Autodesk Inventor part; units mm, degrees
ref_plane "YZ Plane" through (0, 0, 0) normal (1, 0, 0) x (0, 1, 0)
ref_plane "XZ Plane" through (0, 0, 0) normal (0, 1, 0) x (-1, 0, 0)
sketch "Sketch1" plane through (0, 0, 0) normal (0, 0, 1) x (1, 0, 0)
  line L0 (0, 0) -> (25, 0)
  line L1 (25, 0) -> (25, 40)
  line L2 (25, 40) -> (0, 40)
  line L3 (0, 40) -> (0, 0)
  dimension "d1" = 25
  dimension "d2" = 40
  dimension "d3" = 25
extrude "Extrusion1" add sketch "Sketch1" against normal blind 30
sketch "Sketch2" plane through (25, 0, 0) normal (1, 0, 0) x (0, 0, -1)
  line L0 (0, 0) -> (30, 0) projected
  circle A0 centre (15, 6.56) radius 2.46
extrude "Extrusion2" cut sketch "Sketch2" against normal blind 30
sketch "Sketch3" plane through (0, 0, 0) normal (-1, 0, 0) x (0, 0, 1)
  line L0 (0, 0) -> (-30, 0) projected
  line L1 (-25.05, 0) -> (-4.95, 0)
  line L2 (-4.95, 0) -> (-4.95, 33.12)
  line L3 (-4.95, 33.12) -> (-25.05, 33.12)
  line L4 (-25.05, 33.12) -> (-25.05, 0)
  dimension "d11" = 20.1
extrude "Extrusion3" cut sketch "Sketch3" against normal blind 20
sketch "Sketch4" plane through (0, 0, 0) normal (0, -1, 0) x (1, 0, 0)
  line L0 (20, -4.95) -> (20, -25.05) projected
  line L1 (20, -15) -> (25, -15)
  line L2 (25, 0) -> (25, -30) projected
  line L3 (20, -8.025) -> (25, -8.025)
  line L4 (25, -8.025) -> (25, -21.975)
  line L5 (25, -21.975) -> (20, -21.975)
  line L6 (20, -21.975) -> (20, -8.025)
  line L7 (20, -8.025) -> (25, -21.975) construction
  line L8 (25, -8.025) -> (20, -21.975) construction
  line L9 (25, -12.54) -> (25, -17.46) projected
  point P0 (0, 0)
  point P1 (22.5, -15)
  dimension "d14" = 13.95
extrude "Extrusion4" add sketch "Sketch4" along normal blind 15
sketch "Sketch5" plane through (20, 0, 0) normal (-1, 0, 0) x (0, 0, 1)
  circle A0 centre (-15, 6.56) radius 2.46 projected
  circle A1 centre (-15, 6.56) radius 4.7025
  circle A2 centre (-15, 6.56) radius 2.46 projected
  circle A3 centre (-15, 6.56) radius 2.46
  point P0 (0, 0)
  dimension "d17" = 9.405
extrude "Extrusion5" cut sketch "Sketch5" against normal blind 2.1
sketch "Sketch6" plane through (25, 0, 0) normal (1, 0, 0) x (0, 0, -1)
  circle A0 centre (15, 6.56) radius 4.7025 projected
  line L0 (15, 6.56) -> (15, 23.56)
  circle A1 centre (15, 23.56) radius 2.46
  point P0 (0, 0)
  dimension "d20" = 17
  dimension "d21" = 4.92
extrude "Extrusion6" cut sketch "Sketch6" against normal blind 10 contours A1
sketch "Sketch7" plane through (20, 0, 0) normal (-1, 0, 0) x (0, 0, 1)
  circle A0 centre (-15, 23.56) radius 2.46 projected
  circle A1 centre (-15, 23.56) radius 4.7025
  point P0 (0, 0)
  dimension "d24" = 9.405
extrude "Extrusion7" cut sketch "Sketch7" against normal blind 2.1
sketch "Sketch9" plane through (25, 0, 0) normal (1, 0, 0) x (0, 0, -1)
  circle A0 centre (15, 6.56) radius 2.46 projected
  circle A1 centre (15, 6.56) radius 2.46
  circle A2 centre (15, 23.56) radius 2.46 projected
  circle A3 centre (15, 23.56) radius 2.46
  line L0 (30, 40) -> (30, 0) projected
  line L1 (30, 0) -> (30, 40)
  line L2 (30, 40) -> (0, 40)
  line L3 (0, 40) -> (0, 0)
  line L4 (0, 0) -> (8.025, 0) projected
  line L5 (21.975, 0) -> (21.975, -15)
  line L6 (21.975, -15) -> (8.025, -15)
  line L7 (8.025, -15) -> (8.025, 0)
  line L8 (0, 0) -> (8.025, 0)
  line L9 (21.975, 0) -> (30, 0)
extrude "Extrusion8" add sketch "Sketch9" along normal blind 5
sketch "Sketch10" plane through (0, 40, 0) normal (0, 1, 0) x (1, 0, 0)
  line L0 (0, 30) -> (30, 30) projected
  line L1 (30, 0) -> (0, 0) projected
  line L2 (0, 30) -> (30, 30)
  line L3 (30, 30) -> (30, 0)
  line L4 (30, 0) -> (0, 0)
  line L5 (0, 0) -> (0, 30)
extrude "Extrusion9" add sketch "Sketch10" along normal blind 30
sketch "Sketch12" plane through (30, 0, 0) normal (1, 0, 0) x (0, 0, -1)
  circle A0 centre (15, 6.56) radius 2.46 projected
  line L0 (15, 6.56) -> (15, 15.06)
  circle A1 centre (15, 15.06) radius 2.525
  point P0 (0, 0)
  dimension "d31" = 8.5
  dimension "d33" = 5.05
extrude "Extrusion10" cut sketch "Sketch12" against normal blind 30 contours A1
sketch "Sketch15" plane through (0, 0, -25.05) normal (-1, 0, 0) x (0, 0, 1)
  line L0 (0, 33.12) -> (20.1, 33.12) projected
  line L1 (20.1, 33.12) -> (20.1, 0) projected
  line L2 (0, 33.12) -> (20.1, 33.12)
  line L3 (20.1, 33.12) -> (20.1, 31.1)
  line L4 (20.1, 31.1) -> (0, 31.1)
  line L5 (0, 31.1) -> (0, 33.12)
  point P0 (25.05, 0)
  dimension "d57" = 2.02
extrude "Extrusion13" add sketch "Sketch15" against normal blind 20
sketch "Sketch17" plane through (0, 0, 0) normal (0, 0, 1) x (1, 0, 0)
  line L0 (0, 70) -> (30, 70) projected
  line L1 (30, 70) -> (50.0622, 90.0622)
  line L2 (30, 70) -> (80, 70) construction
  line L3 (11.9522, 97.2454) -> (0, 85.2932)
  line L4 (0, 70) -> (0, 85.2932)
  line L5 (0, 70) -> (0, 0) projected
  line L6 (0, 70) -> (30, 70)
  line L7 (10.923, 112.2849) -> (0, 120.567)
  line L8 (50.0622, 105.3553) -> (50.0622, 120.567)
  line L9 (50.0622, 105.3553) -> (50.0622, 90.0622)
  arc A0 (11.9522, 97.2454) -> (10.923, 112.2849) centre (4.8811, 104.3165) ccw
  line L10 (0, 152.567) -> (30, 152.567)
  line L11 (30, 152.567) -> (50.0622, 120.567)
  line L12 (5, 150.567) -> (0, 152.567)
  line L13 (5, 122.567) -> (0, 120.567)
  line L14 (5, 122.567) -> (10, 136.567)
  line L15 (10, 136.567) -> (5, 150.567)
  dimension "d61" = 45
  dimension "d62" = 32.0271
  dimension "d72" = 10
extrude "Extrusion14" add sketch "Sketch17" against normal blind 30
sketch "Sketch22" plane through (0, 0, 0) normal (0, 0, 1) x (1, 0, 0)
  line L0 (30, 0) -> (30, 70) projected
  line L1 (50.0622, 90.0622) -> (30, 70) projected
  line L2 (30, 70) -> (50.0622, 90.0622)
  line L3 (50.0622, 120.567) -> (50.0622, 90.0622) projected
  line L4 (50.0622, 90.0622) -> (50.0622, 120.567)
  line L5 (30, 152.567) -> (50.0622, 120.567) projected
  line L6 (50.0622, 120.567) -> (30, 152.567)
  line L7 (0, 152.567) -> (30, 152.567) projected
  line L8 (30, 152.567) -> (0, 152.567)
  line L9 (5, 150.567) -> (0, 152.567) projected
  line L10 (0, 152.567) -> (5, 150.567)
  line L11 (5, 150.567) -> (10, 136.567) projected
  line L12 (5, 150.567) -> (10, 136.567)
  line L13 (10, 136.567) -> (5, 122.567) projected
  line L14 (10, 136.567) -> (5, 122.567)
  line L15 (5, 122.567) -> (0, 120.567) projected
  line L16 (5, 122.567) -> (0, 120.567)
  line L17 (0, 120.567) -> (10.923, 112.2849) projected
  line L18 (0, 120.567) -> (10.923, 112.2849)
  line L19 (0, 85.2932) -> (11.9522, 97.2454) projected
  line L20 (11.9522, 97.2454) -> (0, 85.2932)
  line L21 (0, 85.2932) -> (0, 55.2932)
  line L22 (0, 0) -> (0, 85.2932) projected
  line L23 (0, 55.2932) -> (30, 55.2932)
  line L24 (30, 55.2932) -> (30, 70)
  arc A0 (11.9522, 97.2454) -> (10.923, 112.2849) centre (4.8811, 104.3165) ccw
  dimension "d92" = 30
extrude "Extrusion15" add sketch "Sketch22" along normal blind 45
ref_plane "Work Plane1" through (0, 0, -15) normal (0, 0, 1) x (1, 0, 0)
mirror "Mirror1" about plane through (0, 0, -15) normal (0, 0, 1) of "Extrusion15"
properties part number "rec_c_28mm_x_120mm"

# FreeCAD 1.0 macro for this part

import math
import FreeCAD as App
import Part
import Sketcher

V = App.Vector
Q = App.Units.Quantity


def add_polygon(sketch, points):
    """Adds a closed chain of lines whose ends are joined by coincident constraints."""
    first, n = sketch.GeometryCount, len(points)
    for a, b in zip(points, points[1:] + points[:1]):
        sketch.addGeometry(Part.LineSegment(App.Vector(*a, 0), App.Vector(*b, 0)), False)
    for i in range(n):
        sketch.addConstraint(Sketcher.Constraint("Coincident", first + i, 2, first + (i + 1) % n, 1))

doc = App.newDocument("Part")
body = doc.addObject("PartDesign::Body", "Body")

# Sketch on XY plane
sketch1 = body.newObject("Sketcher::SketchObject", "Sketch")
sketch1.AttachmentSupport = (doc.getObject("XY_Plane"), [""])
sketch1.MapMode = "FlatFace"
add_polygon(sketch1, [(0, 40), (0, 0), (25, 0), (25, 40)])  # lines 0-3
sketch1.addConstraint(Sketcher.Constraint("Vertical", 0))
sketch1.addConstraint(Sketcher.Constraint("Horizontal", 1))
sketch1.addConstraint(Sketcher.Constraint("Vertical", 2))
sketch1.addConstraint(Sketcher.Constraint("Horizontal", 3))
sketch1.addConstraint(Sketcher.Constraint("Coincident", 0, 2, -1, 1))
sketch1.addConstraint(Sketcher.Constraint("DistanceX", 1, 1, 1, 2, 25.0))
sketch1.addConstraint(Sketcher.Constraint("DistanceY", 0, 2, 0, 1, 40.0))
pad1 = body.newObject("PartDesign::Pad", "Pad")
pad1.Profile = sketch1
pad1.Length = 30
pad1.Reversed = True

# Sketch on YZ plane
sketch2 = body.newObject("Sketcher::SketchObject", "Sketch001")
sketch2.AttachmentSupport = (doc.getObject("YZ_Plane"), [""])
sketch2.MapMode = "FlatFace"
sketch2.AttachmentOffset = App.Placement(V(0, 0, 25), App.Rotation())
sketch2.addGeometry(Part.Circle(V(6.6, -15, 0), V(0, 0, 1), 2.5), False)
sketch2.addConstraint(Sketcher.Constraint("Diameter", 0, 4.92))
sketch2.addConstraint(Sketcher.Constraint("DistanceY", 0, 3, -1, 1, 15.0))
sketch2.addConstraint(Sketcher.Constraint("DistanceX", -1, 1, 0, 3, 6.56))
pocket1 = body.newObject("PartDesign::Pocket", "Pocket")
pocket1.Profile = sketch2
pocket1.Length = 30

# Sketch on YZ plane
sketch3 = body.newObject("Sketcher::SketchObject", "Sketch002")
sketch3.AttachmentSupport = (doc.getObject("YZ_Plane"), [""])
sketch3.MapMode = "FlatFace"
add_polygon(sketch3, [(0, -25), (0, -5), (33, -5), (33, -25)])  # lines 0-3
sketch3.addConstraint(Sketcher.Constraint("Vertical", 0))
sketch3.addConstraint(Sketcher.Constraint("Horizontal", 1))
sketch3.addConstraint(Sketcher.Constraint("Vertical", 2))
sketch3.addConstraint(Sketcher.Constraint("Horizontal", 3))
sketch3.addConstraint(Sketcher.Constraint("PointOnObject", 0, 2, -2))
sketch3.addConstraint(Sketcher.Constraint("DistanceY", 0, 1, 0, 2, 20.1))
sketch3.addConstraint(Sketcher.Constraint("DistanceX", 1, 1, 1, 2, 33.12))
sketch3.addConstraint(Sketcher.Constraint("DistanceY", 0, 2, -1, 1, 4.95))
pocket2 = body.newObject("PartDesign::Pocket", "Pocket001")
pocket2.Profile = sketch3
pocket2.Length = 20
pocket2.Reversed = True

# Sketch on XZ plane
sketch4 = body.newObject("Sketcher::SketchObject", "Sketch003")
sketch4.AttachmentSupport = (doc.getObject("XZ_Plane"), [""])
sketch4.MapMode = "FlatFace"
add_polygon(sketch4, [(25, -8), (20, -8), (20, -22), (25, -22)])  # lines 0-3
sketch4.addConstraint(Sketcher.Constraint("Horizontal", 0))
sketch4.addConstraint(Sketcher.Constraint("Vertical", 1))
sketch4.addConstraint(Sketcher.Constraint("Horizontal", 2))
sketch4.addConstraint(Sketcher.Constraint("Vertical", 3))
sketch4.addConstraint(Sketcher.Constraint("DistanceY", 1, 2, 1, 1, 13.95))
sketch4.addConstraint(Sketcher.Constraint("DistanceX", 0, 2, 0, 1, 5.0))
sketch4.addConstraint(Sketcher.Constraint("DistanceX", -1, 1, 0, 2, 20.0))
sketch4.addConstraint(Sketcher.Constraint("DistanceY", 0, 2, -1, 1, 8.025))
pad2 = body.newObject("PartDesign::Pad", "Pad001")
pad2.Profile = sketch4
pad2.Length = 15

# Sketch on YZ plane
sketch5 = body.newObject("Sketcher::SketchObject", "Sketch004")
sketch5.AttachmentSupport = (doc.getObject("YZ_Plane"), [""])
sketch5.MapMode = "FlatFace"
sketch5.AttachmentOffset = App.Placement(V(0, 0, 20), App.Rotation())
sketch5.addGeometry(Part.Circle(V(6.6, -15, 0), V(0, 0, 1), 4.7), False)
sketch5.addGeometry(Part.Circle(V(6.6, -15, 0), V(0, 0, 1), 2.5), False)
sketch5.addConstraint(Sketcher.Constraint("Coincident", 1, 3, 0, 3))
sketch5.addConstraint(Sketcher.Constraint("Diameter", 0, 9.405))
sketch5.addConstraint(Sketcher.Constraint("Diameter", 1, 4.92))
sketch5.addConstraint(Sketcher.Constraint("DistanceY", 0, 3, -1, 1, 15.0))
sketch5.addConstraint(Sketcher.Constraint("DistanceX", -1, 1, 0, 3, 6.56))
pocket3 = body.newObject("PartDesign::Pocket", "Pocket002")
pocket3.Profile = sketch5
pocket3.Length = 2.1
pocket3.Reversed = True

# Sketch on YZ plane
sketch6 = body.newObject("Sketcher::SketchObject", "Sketch005")
sketch6.AttachmentSupport = (doc.getObject("YZ_Plane"), [""])
sketch6.MapMode = "FlatFace"
sketch6.AttachmentOffset = App.Placement(V(0, 0, 25), App.Rotation())
sketch6.addGeometry(Part.Circle(V(23.6, -15, 0), V(0, 0, 1), 2.5), False)
sketch6.addConstraint(Sketcher.Constraint("Diameter", 0, 4.92))
sketch6.addConstraint(Sketcher.Constraint("DistanceY", 0, 3, -1, 1, 15.0))
sketch6.addConstraint(Sketcher.Constraint("DistanceX", -1, 1, 0, 3, 23.56))
pocket4 = body.newObject("PartDesign::Pocket", "Pocket003")
pocket4.Profile = sketch6
pocket4.Length = 10

# Sketch on YZ plane
sketch7 = body.newObject("Sketcher::SketchObject", "Sketch006")
sketch7.AttachmentSupport = (doc.getObject("YZ_Plane"), [""])
sketch7.MapMode = "FlatFace"
sketch7.AttachmentOffset = App.Placement(V(0, 0, 20), App.Rotation())
sketch7.addGeometry(Part.Circle(V(23.6, -15, 0), V(0, 0, 1), 4.7), False)
sketch7.addGeometry(Part.Circle(V(23.6, -15, 0), V(0, 0, 1), 2.5), False)
sketch7.addConstraint(Sketcher.Constraint("Coincident", 1, 3, 0, 3))
sketch7.addConstraint(Sketcher.Constraint("Diameter", 0, 9.405))
sketch7.addConstraint(Sketcher.Constraint("Diameter", 1, 4.92))
sketch7.addConstraint(Sketcher.Constraint("DistanceY", 0, 3, -1, 1, 15.0))
sketch7.addConstraint(Sketcher.Constraint("DistanceX", -1, 1, 0, 3, 23.56))
pocket5 = body.newObject("PartDesign::Pocket", "Pocket004")
pocket5.Profile = sketch7
pocket5.Length = 2.1
pocket5.Reversed = True

# Sketch on YZ plane
sketch8 = body.newObject("Sketcher::SketchObject", "Sketch007")
sketch8.AttachmentSupport = (doc.getObject("YZ_Plane"), [""])
sketch8.MapMode = "FlatFace"
sketch8.AttachmentOffset = App.Placement(V(0, 0, 25), App.Rotation())
add_polygon(sketch8, [(0, -30), (40, -30), (40, 0), (0, 0), (0, -8), (-15, -8), (-15, -22), (0, -22)])  # lines 0-7
sketch8.addGeometry(Part.Circle(V(6.6, -15, 0), V(0, 0, 1), 2.5), False)  # 8
sketch8.addGeometry(Part.Circle(V(23.6, -15, 0), V(0, 0, 1), 2.5), False)  # 9
sketch8.addConstraint(Sketcher.Constraint("Horizontal", 0))
sketch8.addConstraint(Sketcher.Constraint("Vertical", 1))
sketch8.addConstraint(Sketcher.Constraint("Horizontal", 2))
sketch8.addConstraint(Sketcher.Constraint("Vertical", 3))
sketch8.addConstraint(Sketcher.Constraint("Horizontal", 4))
sketch8.addConstraint(Sketcher.Constraint("Vertical", 5))
sketch8.addConstraint(Sketcher.Constraint("Horizontal", 6))
sketch8.addConstraint(Sketcher.Constraint("Vertical", 7))
sketch8.addConstraint(Sketcher.Constraint("Coincident", 2, 2, -1, 1))
sketch8.addConstraint(Sketcher.Constraint("Equal", 8, 9))
sketch8.addConstraint(Sketcher.Constraint("PointOnObject", 6, 2, -2))
sketch8.addConstraint(Sketcher.Constraint("Horizontal", 8, 3, 9, 3))
sketch8.addConstraint(Sketcher.Constraint("Equal", 3, 7))
sketch8.addConstraint(Sketcher.Constraint("Diameter", 8, 4.92))
sketch8.addConstraint(Sketcher.Constraint("DistanceX", 0, 1, 0, 2, 40.0))
sketch8.addConstraint(Sketcher.Constraint("DistanceX", 4, 2, 4, 1, 15.0))
sketch8.addConstraint(Sketcher.Constraint("DistanceY", 1, 1, 1, 2, 30.0))
sketch8.addConstraint(Sketcher.Constraint("DistanceY", 8, 3, -1, 1, 15.0))
sketch8.addConstraint(Sketcher.Constraint("DistanceX", 8, 3, 9, 3, 17.0))
sketch8.addConstraint(Sketcher.Constraint("DistanceY", 5, 2, 5, 1, 13.95))
sketch8.addConstraint(Sketcher.Constraint("DistanceX", -1, 1, 8, 3, 6.56))
pad3 = body.newObject("PartDesign::Pad", "Pad002")
pad3.Profile = sketch8
pad3.Length = 5

# Sketch on XZ plane
sketch9 = body.newObject("Sketcher::SketchObject", "Sketch008")
sketch9.AttachmentSupport = (doc.getObject("XZ_Plane"), [""])
sketch9.MapMode = "FlatFace"
sketch9.AttachmentOffset = App.Placement(V(0, 0, -40), App.Rotation())
add_polygon(sketch9, [(30, -30), (0, -30), (0, 0), (30, 0)])  # lines 0-3
sketch9.addConstraint(Sketcher.Constraint("Horizontal", 0))
sketch9.addConstraint(Sketcher.Constraint("Vertical", 1))
sketch9.addConstraint(Sketcher.Constraint("Horizontal", 2))
sketch9.addConstraint(Sketcher.Constraint("Vertical", 3))
sketch9.addConstraint(Sketcher.Constraint("Coincident", 1, 2, -1, 1))
sketch9.addConstraint(Sketcher.Constraint("Equal", 2, 1))
sketch9.addConstraint(Sketcher.Constraint("DistanceX", 0, 2, 0, 1, 30.0))
pad4 = body.newObject("PartDesign::Pad", "Pad003")
pad4.Profile = sketch9
pad4.Length = 30
pad4.Reversed = True

# Sketch on YZ plane
sketch10 = body.newObject("Sketcher::SketchObject", "Sketch009")
sketch10.AttachmentSupport = (doc.getObject("YZ_Plane"), [""])
sketch10.MapMode = "FlatFace"
sketch10.AttachmentOffset = App.Placement(V(0, 0, 30), App.Rotation())
sketch10.addGeometry(Part.Circle(V(15.1, -15, 0), V(0, 0, 1), 2.5), False)
sketch10.addConstraint(Sketcher.Constraint("Diameter", 0, 5.05))
sketch10.addConstraint(Sketcher.Constraint("DistanceY", 0, 3, -1, 1, 15.0))
sketch10.addConstraint(Sketcher.Constraint("DistanceX", -1, 1, 0, 3, 15.06))
pocket6 = body.newObject("PartDesign::Pocket", "Pocket005")
pocket6.Profile = sketch10
pocket6.Length = 30

# Sketch on YZ plane
sketch11 = body.newObject("Sketcher::SketchObject", "Sketch010")
sketch11.AttachmentSupport = (doc.getObject("YZ_Plane"), [""])
sketch11.MapMode = "FlatFace"
add_polygon(sketch11, [(33.1, -5), (33.1, -25.1), (31.1, -25.1), (31.1, -5)])  # lines 0-3
sketch11.addConstraint(Sketcher.Constraint("Vertical", 0))
sketch11.addConstraint(Sketcher.Constraint("Horizontal", 1))
sketch11.addConstraint(Sketcher.Constraint("Vertical", 2))
sketch11.addConstraint(Sketcher.Constraint("Horizontal", 3))
sketch11.addConstraint(Sketcher.Constraint("DistanceX", 1, 2, 1, 1, 2.02))
sketch11.addConstraint(Sketcher.Constraint("DistanceY", 0, 2, 0, 1, 20.1))
sketch11.addConstraint(Sketcher.Constraint("DistanceX", -1, 1, 1, 2, 31.1))
sketch11.addConstraint(Sketcher.Constraint("DistanceY", 0, 2, -1, 1, 25.05))
pad5 = body.newObject("PartDesign::Pad", "Pad004")
pad5.Profile = sketch11
pad5.Length = 20

# Sketch on XY plane
sketch12 = body.newObject("Sketcher::SketchObject", "Sketch011")
sketch12.AttachmentSupport = (doc.getObject("XY_Plane"), [""])
sketch12.MapMode = "FlatFace"
sketch12.addGeometry(Part.LineSegment(V(0, 85, 0), V(0, 70, 0)), False)
sketch12.addGeometry(Part.LineSegment(V(0, 70, 0), V(30, 70, 0)), False)
sketch12.addGeometry(Part.LineSegment(V(30, 70, 0), V(50, 90, 0)), False)
sketch12.addGeometry(Part.LineSegment(V(50, 90, 0), V(50, 121, 0)), False)
sketch12.addGeometry(Part.LineSegment(V(50, 121, 0), V(30, 153, 0)), False)
sketch12.addGeometry(Part.LineSegment(V(30, 153, 0), V(0, 153, 0)), False)
sketch12.addGeometry(Part.LineSegment(V(0, 153, 0), V(5, 151, 0)), False)
sketch12.addGeometry(Part.LineSegment(V(5, 151, 0), V(10, 137, 0)), False)
sketch12.addGeometry(Part.LineSegment(V(10, 137, 0), V(5, 123, 0)), False)
sketch12.addGeometry(Part.LineSegment(V(5, 123, 0), V(0, 121, 0)), False)
sketch12.addGeometry(Part.LineSegment(V(0, 121, 0), V(11, 112, 0)), False)
sketch12.addGeometry(Part.ArcOfCircle(Part.Circle(V(5, 104, 0), V(0, 0, 1), 10), math.radians(-45), math.radians(53)), False)
sketch12.addGeometry(Part.LineSegment(V(12, 97, 0), V(0, 85, 0)), False)
sketch12.addConstraint(Sketcher.Constraint("Coincident", 0, 2, 1, 1))
sketch12.addConstraint(Sketcher.Constraint("Coincident", 1, 2, 2, 1))
sketch12.addConstraint(Sketcher.Constraint("Coincident", 2, 2, 3, 1))
sketch12.addConstraint(Sketcher.Constraint("Coincident", 3, 2, 4, 1))
sketch12.addConstraint(Sketcher.Constraint("Coincident", 4, 2, 5, 1))
sketch12.addConstraint(Sketcher.Constraint("Coincident", 5, 2, 6, 1))
sketch12.addConstraint(Sketcher.Constraint("Coincident", 6, 2, 7, 1))
sketch12.addConstraint(Sketcher.Constraint("Coincident", 7, 2, 8, 1))
sketch12.addConstraint(Sketcher.Constraint("Coincident", 8, 2, 9, 1))
sketch12.addConstraint(Sketcher.Constraint("Coincident", 9, 2, 10, 1))
sketch12.addConstraint(Sketcher.Constraint("Tangent", 10, 2, 11, 2))
sketch12.addConstraint(Sketcher.Constraint("Tangent", 11, 1, 12, 1))
sketch12.addConstraint(Sketcher.Constraint("Coincident", 12, 2, 0, 1))
sketch12.addConstraint(Sketcher.Constraint("Vertical", 0))
sketch12.addConstraint(Sketcher.Constraint("Horizontal", 1))
sketch12.addConstraint(Sketcher.Constraint("Vertical", 3))
sketch12.addConstraint(Sketcher.Constraint("Horizontal", 5))
sketch12.addConstraint(Sketcher.Constraint("PointOnObject", 0, 2, -2))
sketch12.addConstraint(Sketcher.Constraint("PointOnObject", 5, 2, -2))
sketch12.addConstraint(Sketcher.Constraint("PointOnObject", 9, 2, -2))
sketch12.addConstraint(Sketcher.Constraint("Parallel", 2, 12))
sketch12.addConstraint(Sketcher.Constraint("Horizontal", 3, 2, 9, 2))
sketch12.addConstraint(Sketcher.Constraint("Vertical", 1, 2, 4, 2))
sketch12.addConstraint(Sketcher.Constraint("Vertical", 6, 2, 8, 2))
sketch12.addConstraint(Sketcher.Constraint("Equal", 7, 8))
sketch12.addConstraint(Sketcher.Constraint("Equal", 6, 9))
sketch12.addConstraint(Sketcher.Constraint("Radius", 11, 10.0))
sketch12.addConstraint(Sketcher.Constraint("Angle", 2, Q("45 deg")))
sketch12.addConstraint(Sketcher.Constraint("DistanceX", -1, 1, 7, 2, 10.0))
sketch12.addConstraint(Sketcher.Constraint("DistanceX", 1, 1, 1, 2, 30.0))
sketch12.addConstraint(Sketcher.Constraint("DistanceY", -1, 1, 0, 2, 70.0))
sketch12.addConstraint(Sketcher.Constraint("DistanceX", -1, 1, 6, 2, 5.0))
sketch12.addConstraint(Sketcher.Constraint("DistanceY", 3, 2, 4, 2, 32.0))
sketch12.addConstraint(Sketcher.Constraint("DistanceY", 6, 2, 5, 2, 2.0))
sketch12.addConstraint(Sketcher.Constraint("Angle", 10, Q("-37.1703 deg")))
sketch12.addConstraint(Sketcher.Constraint("Distance", 4, 37.769))
sketch12.addConstraint(Sketcher.Constraint("Distance", 12, 16.903))
sketch12.addConstraint(Sketcher.Constraint("DistanceY", 0, 2, 0, 1, 15.2932))
pad6 = body.newObject("PartDesign::Pad", "Pad005")
pad6.Profile = sketch12
pad6.Length = 30
pad6.Reversed = True

# Sketch on XY plane
sketch13 = body.newObject("Sketcher::SketchObject", "Sketch012")
sketch13.AttachmentSupport = (doc.getObject("XY_Plane"), [""])
sketch13.MapMode = "FlatFace"
sketch13.addGeometry(Part.LineSegment(V(0, 55, 0), V(30, 55, 0)), False)
sketch13.addGeometry(Part.LineSegment(V(30, 55, 0), V(30, 70, 0)), False)
sketch13.addGeometry(Part.LineSegment(V(30, 70, 0), V(50, 90, 0)), False)
sketch13.addGeometry(Part.LineSegment(V(50, 90, 0), V(50, 121, 0)), False)
sketch13.addGeometry(Part.LineSegment(V(50, 121, 0), V(30, 153, 0)), False)
sketch13.addGeometry(Part.LineSegment(V(30, 153, 0), V(0, 153, 0)), False)
sketch13.addGeometry(Part.LineSegment(V(0, 153, 0), V(5, 151, 0)), False)
sketch13.addGeometry(Part.LineSegment(V(5, 151, 0), V(10, 137, 0)), False)
sketch13.addGeometry(Part.LineSegment(V(10, 137, 0), V(5, 123, 0)), False)
sketch13.addGeometry(Part.LineSegment(V(5, 123, 0), V(0, 121, 0)), False)
sketch13.addGeometry(Part.LineSegment(V(0, 121, 0), V(11, 112, 0)), False)
sketch13.addGeometry(Part.ArcOfCircle(Part.Circle(V(5, 104, 0), V(0, 0, 1), 10), math.radians(-45), math.radians(53)), False)
sketch13.addGeometry(Part.LineSegment(V(12, 97, 0), V(0, 85, 0)), False)
sketch13.addGeometry(Part.LineSegment(V(0, 85, 0), V(0, 55, 0)), False)
sketch13.addConstraint(Sketcher.Constraint("Coincident", 0, 2, 1, 1))
sketch13.addConstraint(Sketcher.Constraint("Coincident", 1, 2, 2, 1))
sketch13.addConstraint(Sketcher.Constraint("Coincident", 2, 2, 3, 1))
sketch13.addConstraint(Sketcher.Constraint("Coincident", 3, 2, 4, 1))
sketch13.addConstraint(Sketcher.Constraint("Coincident", 4, 2, 5, 1))
sketch13.addConstraint(Sketcher.Constraint("Coincident", 5, 2, 6, 1))
sketch13.addConstraint(Sketcher.Constraint("Coincident", 6, 2, 7, 1))
sketch13.addConstraint(Sketcher.Constraint("Coincident", 7, 2, 8, 1))
sketch13.addConstraint(Sketcher.Constraint("Coincident", 8, 2, 9, 1))
sketch13.addConstraint(Sketcher.Constraint("Coincident", 9, 2, 10, 1))
sketch13.addConstraint(Sketcher.Constraint("Tangent", 10, 2, 11, 2))
sketch13.addConstraint(Sketcher.Constraint("Tangent", 11, 1, 12, 1))
sketch13.addConstraint(Sketcher.Constraint("Coincident", 12, 2, 13, 1))
sketch13.addConstraint(Sketcher.Constraint("Coincident", 13, 2, 0, 1))
sketch13.addConstraint(Sketcher.Constraint("Horizontal", 0))
sketch13.addConstraint(Sketcher.Constraint("Vertical", 1))
sketch13.addConstraint(Sketcher.Constraint("Vertical", 3))
sketch13.addConstraint(Sketcher.Constraint("Horizontal", 5))
sketch13.addConstraint(Sketcher.Constraint("Vertical", 13))
sketch13.addConstraint(Sketcher.Constraint("PointOnObject", 5, 2, -2))
sketch13.addConstraint(Sketcher.Constraint("PointOnObject", 9, 2, -2))
sketch13.addConstraint(Sketcher.Constraint("PointOnObject", 12, 2, -2))
sketch13.addConstraint(Sketcher.Constraint("Parallel", 2, 12))
sketch13.addConstraint(Sketcher.Constraint("Horizontal", 3, 2, 9, 2))
sketch13.addConstraint(Sketcher.Constraint("Vertical", 1, 2, 4, 2))
sketch13.addConstraint(Sketcher.Constraint("Vertical", 6, 2, 8, 2))
sketch13.addConstraint(Sketcher.Constraint("Equal", 5, 13))
sketch13.addConstraint(Sketcher.Constraint("Equal", 7, 8))
sketch13.addConstraint(Sketcher.Constraint("Equal", 6, 9))
sketch13.addConstraint(Sketcher.Constraint("DistanceX", 0, 1, 0, 2, 30.0))
sketch13.addConstraint(Sketcher.Constraint("Radius", 11, 10.0))
sketch13.addConstraint(Sketcher.Constraint("DistanceY", 3, 2, 6, 2, 30.0))
sketch13.addConstraint(Sketcher.Constraint("Angle", 2, Q("45 deg")))
sketch13.addConstraint(Sketcher.Constraint("DistanceY", -1, 1, 1, 2, 70.0))
sketch13.addConstraint(Sketcher.Constraint("DistanceX", -1, 1, 6, 2, 5.0))
sketch13.addConstraint(Sketcher.Constraint("DistanceX", -1, 1, 7, 2, 10.0))
sketch13.addConstraint(Sketcher.Constraint("DistanceY", 3, 2, 4, 2, 32.0))
sketch13.addConstraint(Sketcher.Constraint("Angle", 10, Q("-37.1703 deg")))
sketch13.addConstraint(Sketcher.Constraint("Distance", 4, 37.769))
sketch13.addConstraint(Sketcher.Constraint("Distance", 12, 16.903))
sketch13.addConstraint(Sketcher.Constraint("DistanceY", 1, 1, 1, 2, 14.7068))
pad7 = body.newObject("PartDesign::Pad", "Pad006")
pad7.Profile = sketch13
pad7.Length = 45
doc.recompute()

datumplane = body.newObject("PartDesign::Plane", "DatumPlane")
datumplane.AttachmentSupport = (doc.getObject("XY_Plane"), [""])
datumplane.MapMode = "FlatFace"
datumplane.AttachmentOffset = App.Placement(V(0, 0, -15), App.Rotation())
mirrored = body.newObject("PartDesign::Mirrored", "Mirrored")
mirrored.Originals = [pad7]
mirrored.MirrorPlane = (datumplane, [""])
body.Tip = mirrored

doc.recompute()
